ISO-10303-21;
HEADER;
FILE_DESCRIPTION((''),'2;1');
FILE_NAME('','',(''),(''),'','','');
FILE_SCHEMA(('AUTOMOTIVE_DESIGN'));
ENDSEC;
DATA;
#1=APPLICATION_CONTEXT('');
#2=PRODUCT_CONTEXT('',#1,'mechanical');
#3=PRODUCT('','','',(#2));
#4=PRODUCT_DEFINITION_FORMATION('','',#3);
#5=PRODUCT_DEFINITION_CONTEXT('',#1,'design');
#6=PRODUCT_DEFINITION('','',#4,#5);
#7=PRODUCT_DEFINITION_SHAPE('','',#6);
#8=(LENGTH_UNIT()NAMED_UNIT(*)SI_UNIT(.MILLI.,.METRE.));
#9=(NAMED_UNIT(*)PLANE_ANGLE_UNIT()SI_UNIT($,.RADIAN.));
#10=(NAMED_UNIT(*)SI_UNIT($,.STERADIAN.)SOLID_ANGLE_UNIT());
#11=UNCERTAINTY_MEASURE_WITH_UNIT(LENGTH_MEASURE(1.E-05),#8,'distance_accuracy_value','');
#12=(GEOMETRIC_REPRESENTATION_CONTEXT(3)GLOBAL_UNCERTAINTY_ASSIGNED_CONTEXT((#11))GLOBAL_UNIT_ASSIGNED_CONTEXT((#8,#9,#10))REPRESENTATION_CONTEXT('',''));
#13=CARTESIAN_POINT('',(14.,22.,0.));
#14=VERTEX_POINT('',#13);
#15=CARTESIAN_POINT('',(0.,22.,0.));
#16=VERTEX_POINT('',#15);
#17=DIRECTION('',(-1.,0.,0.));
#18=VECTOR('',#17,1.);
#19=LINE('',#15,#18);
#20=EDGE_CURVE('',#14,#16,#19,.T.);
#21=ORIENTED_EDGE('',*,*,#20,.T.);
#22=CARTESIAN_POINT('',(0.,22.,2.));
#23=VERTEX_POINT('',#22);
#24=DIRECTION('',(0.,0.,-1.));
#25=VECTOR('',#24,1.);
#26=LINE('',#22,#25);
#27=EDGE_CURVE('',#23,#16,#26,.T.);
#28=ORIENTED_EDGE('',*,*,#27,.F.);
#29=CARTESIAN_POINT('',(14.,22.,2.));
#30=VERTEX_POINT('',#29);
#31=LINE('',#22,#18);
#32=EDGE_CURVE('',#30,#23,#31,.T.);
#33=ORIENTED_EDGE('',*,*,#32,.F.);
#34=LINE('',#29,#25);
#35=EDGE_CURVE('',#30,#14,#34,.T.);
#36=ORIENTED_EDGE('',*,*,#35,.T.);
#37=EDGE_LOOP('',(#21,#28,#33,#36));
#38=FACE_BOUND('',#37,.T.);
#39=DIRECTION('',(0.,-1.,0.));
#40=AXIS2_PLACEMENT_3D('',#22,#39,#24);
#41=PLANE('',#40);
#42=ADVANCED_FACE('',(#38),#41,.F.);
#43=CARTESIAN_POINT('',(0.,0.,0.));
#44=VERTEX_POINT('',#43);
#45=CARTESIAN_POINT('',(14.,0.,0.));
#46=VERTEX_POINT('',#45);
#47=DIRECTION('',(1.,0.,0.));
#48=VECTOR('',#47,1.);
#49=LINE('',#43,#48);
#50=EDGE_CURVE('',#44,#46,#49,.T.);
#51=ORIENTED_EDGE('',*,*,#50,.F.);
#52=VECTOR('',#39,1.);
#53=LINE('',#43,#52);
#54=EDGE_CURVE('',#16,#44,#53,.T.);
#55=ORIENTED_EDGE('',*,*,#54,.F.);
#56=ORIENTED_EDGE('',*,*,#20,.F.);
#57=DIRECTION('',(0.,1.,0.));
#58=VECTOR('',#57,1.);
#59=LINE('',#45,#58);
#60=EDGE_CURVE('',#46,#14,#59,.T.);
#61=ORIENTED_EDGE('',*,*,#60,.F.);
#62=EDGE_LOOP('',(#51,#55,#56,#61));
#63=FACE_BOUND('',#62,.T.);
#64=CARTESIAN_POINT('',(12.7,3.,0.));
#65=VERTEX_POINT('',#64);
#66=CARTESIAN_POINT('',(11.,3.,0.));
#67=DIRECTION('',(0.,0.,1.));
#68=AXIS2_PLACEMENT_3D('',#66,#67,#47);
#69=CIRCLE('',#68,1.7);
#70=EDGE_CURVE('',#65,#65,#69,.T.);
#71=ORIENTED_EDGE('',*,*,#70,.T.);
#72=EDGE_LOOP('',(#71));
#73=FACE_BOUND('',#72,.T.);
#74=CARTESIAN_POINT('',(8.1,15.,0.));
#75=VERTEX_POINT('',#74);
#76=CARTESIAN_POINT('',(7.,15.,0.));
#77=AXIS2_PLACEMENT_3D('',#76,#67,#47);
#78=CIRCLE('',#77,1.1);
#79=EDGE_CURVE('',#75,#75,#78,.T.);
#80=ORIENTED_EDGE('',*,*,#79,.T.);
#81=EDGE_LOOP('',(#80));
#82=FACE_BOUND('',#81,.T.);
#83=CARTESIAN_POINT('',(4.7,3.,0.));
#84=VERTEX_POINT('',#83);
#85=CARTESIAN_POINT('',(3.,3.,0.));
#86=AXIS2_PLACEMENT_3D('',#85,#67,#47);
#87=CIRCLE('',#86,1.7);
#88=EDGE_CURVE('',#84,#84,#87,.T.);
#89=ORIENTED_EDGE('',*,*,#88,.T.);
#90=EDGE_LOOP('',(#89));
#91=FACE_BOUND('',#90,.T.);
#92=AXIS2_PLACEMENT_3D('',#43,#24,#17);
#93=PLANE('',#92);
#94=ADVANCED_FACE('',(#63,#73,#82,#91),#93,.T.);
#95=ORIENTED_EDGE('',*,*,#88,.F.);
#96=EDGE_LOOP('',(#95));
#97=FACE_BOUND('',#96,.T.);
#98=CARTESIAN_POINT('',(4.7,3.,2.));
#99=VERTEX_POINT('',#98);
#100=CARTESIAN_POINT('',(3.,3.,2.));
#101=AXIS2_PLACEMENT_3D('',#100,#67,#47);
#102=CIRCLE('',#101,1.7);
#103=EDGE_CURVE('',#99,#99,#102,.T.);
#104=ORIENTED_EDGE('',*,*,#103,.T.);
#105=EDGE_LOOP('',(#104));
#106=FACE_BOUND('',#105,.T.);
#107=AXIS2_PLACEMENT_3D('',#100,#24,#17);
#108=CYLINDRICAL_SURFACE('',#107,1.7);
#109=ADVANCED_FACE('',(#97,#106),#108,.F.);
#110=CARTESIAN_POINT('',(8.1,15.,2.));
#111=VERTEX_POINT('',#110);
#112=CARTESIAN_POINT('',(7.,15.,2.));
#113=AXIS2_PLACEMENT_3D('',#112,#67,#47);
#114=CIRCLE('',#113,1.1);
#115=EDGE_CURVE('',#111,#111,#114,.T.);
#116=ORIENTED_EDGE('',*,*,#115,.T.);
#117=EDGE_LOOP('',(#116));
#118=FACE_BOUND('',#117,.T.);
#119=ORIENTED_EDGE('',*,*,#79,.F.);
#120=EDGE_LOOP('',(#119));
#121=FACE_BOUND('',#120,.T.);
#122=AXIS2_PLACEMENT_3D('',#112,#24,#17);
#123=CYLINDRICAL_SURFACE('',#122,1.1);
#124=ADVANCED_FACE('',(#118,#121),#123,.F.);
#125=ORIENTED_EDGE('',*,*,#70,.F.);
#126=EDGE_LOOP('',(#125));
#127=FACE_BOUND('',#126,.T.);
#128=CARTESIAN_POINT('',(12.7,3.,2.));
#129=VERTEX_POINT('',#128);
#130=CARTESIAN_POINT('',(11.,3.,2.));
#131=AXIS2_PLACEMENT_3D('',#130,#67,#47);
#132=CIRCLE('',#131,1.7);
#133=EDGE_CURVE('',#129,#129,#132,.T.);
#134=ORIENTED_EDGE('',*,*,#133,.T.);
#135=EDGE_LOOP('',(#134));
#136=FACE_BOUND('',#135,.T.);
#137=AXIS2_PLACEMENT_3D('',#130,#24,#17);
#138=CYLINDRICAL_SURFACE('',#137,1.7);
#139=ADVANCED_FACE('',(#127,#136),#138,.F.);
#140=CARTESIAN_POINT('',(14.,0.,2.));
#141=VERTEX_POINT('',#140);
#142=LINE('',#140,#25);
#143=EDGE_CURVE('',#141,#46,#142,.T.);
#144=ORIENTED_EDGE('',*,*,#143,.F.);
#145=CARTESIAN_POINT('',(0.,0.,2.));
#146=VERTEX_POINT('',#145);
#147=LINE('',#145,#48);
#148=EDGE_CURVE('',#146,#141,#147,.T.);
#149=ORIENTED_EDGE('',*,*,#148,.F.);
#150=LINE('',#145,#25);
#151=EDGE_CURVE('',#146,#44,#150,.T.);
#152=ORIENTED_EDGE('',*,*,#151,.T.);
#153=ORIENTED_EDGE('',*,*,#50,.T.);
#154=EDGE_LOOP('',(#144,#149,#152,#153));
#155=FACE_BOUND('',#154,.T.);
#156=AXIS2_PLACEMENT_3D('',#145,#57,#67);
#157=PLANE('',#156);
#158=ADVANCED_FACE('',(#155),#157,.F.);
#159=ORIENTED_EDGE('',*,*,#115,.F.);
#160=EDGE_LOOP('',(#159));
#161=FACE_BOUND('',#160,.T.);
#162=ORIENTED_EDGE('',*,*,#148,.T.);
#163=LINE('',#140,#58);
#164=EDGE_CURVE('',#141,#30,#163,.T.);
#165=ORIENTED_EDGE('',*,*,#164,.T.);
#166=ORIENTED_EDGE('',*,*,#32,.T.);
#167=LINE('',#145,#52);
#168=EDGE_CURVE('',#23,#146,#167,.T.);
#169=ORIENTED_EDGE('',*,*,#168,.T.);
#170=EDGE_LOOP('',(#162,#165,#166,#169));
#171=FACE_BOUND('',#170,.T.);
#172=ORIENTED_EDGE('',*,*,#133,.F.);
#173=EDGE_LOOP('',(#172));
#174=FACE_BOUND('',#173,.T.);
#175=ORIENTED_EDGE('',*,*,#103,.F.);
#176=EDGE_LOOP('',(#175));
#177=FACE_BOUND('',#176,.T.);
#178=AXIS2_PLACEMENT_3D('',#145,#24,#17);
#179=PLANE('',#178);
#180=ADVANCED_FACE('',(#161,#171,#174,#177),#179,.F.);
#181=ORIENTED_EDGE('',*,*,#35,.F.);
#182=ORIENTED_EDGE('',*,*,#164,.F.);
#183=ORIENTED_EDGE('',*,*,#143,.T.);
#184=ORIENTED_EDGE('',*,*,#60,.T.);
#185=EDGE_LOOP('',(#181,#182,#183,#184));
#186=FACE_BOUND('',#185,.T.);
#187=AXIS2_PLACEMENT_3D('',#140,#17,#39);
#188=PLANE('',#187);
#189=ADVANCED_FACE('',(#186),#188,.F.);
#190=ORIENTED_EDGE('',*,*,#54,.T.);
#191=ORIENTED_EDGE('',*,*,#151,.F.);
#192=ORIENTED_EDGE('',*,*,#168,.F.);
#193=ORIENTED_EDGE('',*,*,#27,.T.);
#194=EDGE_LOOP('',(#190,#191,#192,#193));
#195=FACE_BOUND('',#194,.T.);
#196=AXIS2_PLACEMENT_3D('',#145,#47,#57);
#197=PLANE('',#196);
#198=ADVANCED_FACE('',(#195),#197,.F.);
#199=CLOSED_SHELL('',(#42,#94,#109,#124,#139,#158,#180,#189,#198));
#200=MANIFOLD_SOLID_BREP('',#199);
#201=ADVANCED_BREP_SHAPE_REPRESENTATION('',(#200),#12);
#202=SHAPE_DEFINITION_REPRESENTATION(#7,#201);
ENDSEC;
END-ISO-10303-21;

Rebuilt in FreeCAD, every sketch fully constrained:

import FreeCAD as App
import Part
import Sketcher

V = App.Vector
Q = App.Units.Quantity


def add_polygon(sketch, points):
    """Adds a closed chain of lines whose ends are joined by coincident constraints."""
    first, n = sketch.GeometryCount, len(points)
    for a, b in zip(points, points[1:] + points[:1]):
        sketch.addGeometry(Part.LineSegment(App.Vector(*a, 0), App.Vector(*b, 0)), False)
    for i in range(n):
        sketch.addConstraint(Sketcher.Constraint("Coincident", first + i, 2, first + (i + 1) % n, 1))

doc = App.newDocument("Part")
body = doc.addObject("PartDesign::Body", "Body")

sketch1 = body.newObject("Sketcher::SketchObject", "Sketch")
sketch1.AttachmentSupport = (doc.getObject("XY_Plane"), [""])
sketch1.MapMode = "FlatFace"
add_polygon(sketch1, [(0, 22), (0, 0), (14, 0), (14, 22)])
sketch1.addGeometry(Part.Circle(V(3, 3, 0), V(0, 0, 1), 1.7), False)
sketch1.addGeometry(Part.Circle(V(11, 3, 0), V(0, 0, 1), 1.7), False)
sketch1.addGeometry(Part.Circle(V(7, 15, 0), V(0, 0, 1), 1.1), False)
sketch1.addConstraint([
    Sketcher.Constraint("Vertical", 0),
    Sketcher.Constraint("Horizontal", 1),
    Sketcher.Constraint("Vertical", 2),
    Sketcher.Constraint("Horizontal", 3),
    Sketcher.Constraint("Coincident", 0, 2, -1, 1),
    Sketcher.Constraint("Equal", 4, 5),
    Sketcher.Constraint("Horizontal", 4, 3, 5, 3),
    Sketcher.Constraint("Diameter", 4, Q("3.4 mm")),
    Sketcher.Constraint("Diameter", 6, Q("2.2 mm")),
    Sketcher.Constraint("DistanceX", 1, 1, 1, 2, Q("14 mm")),
    Sketcher.Constraint("DistanceY", 0, 2, 0, 1, Q("22 mm")),
    Sketcher.Constraint("DistanceX", -1, 1, 4, 3, Q("3 mm")),
    Sketcher.Constraint("DistanceY", -1, 1, 4, 3, Q("3 mm")),
    Sketcher.Constraint("DistanceX", -1, 1, 5, 3, Q("11 mm")),
    Sketcher.Constraint("DistanceX", -1, 1, 6, 3, Q("7 mm")),
    Sketcher.Constraint("DistanceY", -1, 1, 6, 3, Q("15 mm")),
])
pad1 = body.newObject("PartDesign::Pad", "Pad")
pad1.Profile = sketch1
pad1.Length = 2

doc.recompute()
